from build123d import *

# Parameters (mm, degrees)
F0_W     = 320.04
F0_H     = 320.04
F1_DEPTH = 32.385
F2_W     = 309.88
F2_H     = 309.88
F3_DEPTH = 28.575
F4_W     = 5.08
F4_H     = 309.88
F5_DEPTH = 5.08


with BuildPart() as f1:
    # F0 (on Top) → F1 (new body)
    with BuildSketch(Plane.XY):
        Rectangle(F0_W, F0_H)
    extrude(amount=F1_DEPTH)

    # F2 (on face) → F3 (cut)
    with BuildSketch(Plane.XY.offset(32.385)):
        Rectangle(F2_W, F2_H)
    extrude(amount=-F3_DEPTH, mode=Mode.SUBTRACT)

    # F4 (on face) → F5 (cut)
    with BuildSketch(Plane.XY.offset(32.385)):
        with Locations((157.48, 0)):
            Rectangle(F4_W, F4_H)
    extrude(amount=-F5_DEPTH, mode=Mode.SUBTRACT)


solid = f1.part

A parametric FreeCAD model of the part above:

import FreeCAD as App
import Part
import Sketcher
from FreeCAD import Vector
Q = App.Units.Quantity

doc = App.newDocument("Part")
body = doc.addObject("PartDesign::Body", "Body")

sketch1 = body.newObject("Sketcher::SketchObject", "Sketch")
sketch1.AttachmentSupport = (doc.getObject("XY_Plane"), [""])
sketch1.MapMode = "FlatFace"
sketch1.addGeometry([
    Part.LineSegment(Vector(-160, 160, 0), Vector(-160, -160, 0)),
    Part.LineSegment(Vector(-160, -160, 0), Vector(160, -160, 0)),
    Part.LineSegment(Vector(160, -160, 0), Vector(160, 160, 0)),
    Part.LineSegment(Vector(160, 160, 0), Vector(-160, 160, 0)),
], False)
sketch1.addConstraint([
    Sketcher.Constraint("Coincident", 0, 2, 1, 1),
    Sketcher.Constraint("Coincident", 1, 2, 2, 1),
    Sketcher.Constraint("Coincident", 2, 2, 3, 1),
    Sketcher.Constraint("Coincident", 3, 2, 0, 1),
    Sketcher.Constraint("Vertical", 0),
    Sketcher.Constraint("Horizontal", 1),
    Sketcher.Constraint("Vertical", 2),
    Sketcher.Constraint("Horizontal", 3),
    Sketcher.Constraint("Symmetric", 0, 2, 2, 2, -1, 1),
    Sketcher.Constraint("Equal", 3, 0),
    Sketcher.Constraint("DistanceX", 1, 1, 1, 2, Q("12.6 in")),
])
pad1 = body.newObject("PartDesign::Pad", "Pad")
pad1.Profile = sketch1
pad1.Length = Q("1.275 in")

sketch2 = body.newObject("Sketcher::SketchObject", "Sketch001")
sketch2.AttachmentSupport = (doc.getObject("XY_Plane"), [""])
sketch2.MapMode = "FlatFace"
sketch2.AttachmentOffset = App.Placement(Vector(0, 0, 1.275 * 25.4), App.Rotation())
sketch2.addGeometry([
    Part.LineSegment(Vector(-155, 155, 0), Vector(-155, -155, 0)),
    Part.LineSegment(Vector(-155, -155, 0), Vector(155, -155, 0)),
    Part.LineSegment(Vector(155, -155, 0), Vector(155, 155, 0)),
    Part.LineSegment(Vector(155, 155, 0), Vector(-155, 155, 0)),
], False)
sketch2.addConstraint([
    Sketcher.Constraint("Coincident", 0, 2, 1, 1),
    Sketcher.Constraint("Coincident", 1, 2, 2, 1),
    Sketcher.Constraint("Coincident", 2, 2, 3, 1),
    Sketcher.Constraint("Coincident", 3, 2, 0, 1),
    Sketcher.Constraint("Vertical", 0),
    Sketcher.Constraint("Horizontal", 1),
    Sketcher.Constraint("Vertical", 2),
    Sketcher.Constraint("Horizontal", 3),
    Sketcher.Constraint("Symmetric", 0, 2, 2, 2, -1, 1),
    Sketcher.Constraint("Equal", 3, 0),
    Sketcher.Constraint("DistanceX", 1, 1, 1, 2, Q("12.2 in")),
])
pocket1 = body.newObject("PartDesign::Pocket", "Pocket")
pocket1.Profile = sketch2
pocket1.Length = Q("1.125 in")

sketch3 = body.newObject("Sketcher::SketchObject", "Sketch002")
sketch3.AttachmentSupport = (doc.getObject("XY_Plane"), [""])
sketch3.MapMode = "FlatFace"
sketch3.AttachmentOffset = App.Placement(Vector(0, 0, 1.275 * 25.4), App.Rotation())
sketch3.addGeometry([
    Part.LineSegment(Vector(155, 155, 0), Vector(155, -155, 0)),
    Part.LineSegment(Vector(155, -155, 0), Vector(160, -155, 0)),
    Part.LineSegment(Vector(160, -155, 0), Vector(160, 155, 0)),
    Part.LineSegment(Vector(160, 155, 0), Vector(155, 155, 0)),
], False)
sketch3.addConstraint([
    Sketcher.Constraint("Coincident", 0, 2, 1, 1),
    Sketcher.Constraint("Coincident", 1, 2, 2, 1),
    Sketcher.Constraint("Coincident", 2, 2, 3, 1),
    Sketcher.Constraint("Coincident", 3, 2, 0, 1),
    Sketcher.Constraint("Vertical", 0),
    Sketcher.Constraint("Horizontal", 1),
    Sketcher.Constraint("Vertical", 2),
    Sketcher.Constraint("Horizontal", 3),
    Sketcher.Constraint("DistanceX", 1, 1, 1, 2, Q("0.2 in")),
    Sketcher.Constraint("DistanceY", 0, 2, 0, 1, Q("12.2 in")),
    Sketcher.Constraint("DistanceX", -1, 1, 0, 2, Q("6.1 in")),
    Sketcher.Constraint("DistanceY", 0, 2, -1, 1, Q("6.1 in")),
])
pocket2 = body.newObject("PartDesign::Pocket", "Pocket001")
pocket2.Profile = sketch3
pocket2.Length = Q("0.2 in")

doc.recompute()
